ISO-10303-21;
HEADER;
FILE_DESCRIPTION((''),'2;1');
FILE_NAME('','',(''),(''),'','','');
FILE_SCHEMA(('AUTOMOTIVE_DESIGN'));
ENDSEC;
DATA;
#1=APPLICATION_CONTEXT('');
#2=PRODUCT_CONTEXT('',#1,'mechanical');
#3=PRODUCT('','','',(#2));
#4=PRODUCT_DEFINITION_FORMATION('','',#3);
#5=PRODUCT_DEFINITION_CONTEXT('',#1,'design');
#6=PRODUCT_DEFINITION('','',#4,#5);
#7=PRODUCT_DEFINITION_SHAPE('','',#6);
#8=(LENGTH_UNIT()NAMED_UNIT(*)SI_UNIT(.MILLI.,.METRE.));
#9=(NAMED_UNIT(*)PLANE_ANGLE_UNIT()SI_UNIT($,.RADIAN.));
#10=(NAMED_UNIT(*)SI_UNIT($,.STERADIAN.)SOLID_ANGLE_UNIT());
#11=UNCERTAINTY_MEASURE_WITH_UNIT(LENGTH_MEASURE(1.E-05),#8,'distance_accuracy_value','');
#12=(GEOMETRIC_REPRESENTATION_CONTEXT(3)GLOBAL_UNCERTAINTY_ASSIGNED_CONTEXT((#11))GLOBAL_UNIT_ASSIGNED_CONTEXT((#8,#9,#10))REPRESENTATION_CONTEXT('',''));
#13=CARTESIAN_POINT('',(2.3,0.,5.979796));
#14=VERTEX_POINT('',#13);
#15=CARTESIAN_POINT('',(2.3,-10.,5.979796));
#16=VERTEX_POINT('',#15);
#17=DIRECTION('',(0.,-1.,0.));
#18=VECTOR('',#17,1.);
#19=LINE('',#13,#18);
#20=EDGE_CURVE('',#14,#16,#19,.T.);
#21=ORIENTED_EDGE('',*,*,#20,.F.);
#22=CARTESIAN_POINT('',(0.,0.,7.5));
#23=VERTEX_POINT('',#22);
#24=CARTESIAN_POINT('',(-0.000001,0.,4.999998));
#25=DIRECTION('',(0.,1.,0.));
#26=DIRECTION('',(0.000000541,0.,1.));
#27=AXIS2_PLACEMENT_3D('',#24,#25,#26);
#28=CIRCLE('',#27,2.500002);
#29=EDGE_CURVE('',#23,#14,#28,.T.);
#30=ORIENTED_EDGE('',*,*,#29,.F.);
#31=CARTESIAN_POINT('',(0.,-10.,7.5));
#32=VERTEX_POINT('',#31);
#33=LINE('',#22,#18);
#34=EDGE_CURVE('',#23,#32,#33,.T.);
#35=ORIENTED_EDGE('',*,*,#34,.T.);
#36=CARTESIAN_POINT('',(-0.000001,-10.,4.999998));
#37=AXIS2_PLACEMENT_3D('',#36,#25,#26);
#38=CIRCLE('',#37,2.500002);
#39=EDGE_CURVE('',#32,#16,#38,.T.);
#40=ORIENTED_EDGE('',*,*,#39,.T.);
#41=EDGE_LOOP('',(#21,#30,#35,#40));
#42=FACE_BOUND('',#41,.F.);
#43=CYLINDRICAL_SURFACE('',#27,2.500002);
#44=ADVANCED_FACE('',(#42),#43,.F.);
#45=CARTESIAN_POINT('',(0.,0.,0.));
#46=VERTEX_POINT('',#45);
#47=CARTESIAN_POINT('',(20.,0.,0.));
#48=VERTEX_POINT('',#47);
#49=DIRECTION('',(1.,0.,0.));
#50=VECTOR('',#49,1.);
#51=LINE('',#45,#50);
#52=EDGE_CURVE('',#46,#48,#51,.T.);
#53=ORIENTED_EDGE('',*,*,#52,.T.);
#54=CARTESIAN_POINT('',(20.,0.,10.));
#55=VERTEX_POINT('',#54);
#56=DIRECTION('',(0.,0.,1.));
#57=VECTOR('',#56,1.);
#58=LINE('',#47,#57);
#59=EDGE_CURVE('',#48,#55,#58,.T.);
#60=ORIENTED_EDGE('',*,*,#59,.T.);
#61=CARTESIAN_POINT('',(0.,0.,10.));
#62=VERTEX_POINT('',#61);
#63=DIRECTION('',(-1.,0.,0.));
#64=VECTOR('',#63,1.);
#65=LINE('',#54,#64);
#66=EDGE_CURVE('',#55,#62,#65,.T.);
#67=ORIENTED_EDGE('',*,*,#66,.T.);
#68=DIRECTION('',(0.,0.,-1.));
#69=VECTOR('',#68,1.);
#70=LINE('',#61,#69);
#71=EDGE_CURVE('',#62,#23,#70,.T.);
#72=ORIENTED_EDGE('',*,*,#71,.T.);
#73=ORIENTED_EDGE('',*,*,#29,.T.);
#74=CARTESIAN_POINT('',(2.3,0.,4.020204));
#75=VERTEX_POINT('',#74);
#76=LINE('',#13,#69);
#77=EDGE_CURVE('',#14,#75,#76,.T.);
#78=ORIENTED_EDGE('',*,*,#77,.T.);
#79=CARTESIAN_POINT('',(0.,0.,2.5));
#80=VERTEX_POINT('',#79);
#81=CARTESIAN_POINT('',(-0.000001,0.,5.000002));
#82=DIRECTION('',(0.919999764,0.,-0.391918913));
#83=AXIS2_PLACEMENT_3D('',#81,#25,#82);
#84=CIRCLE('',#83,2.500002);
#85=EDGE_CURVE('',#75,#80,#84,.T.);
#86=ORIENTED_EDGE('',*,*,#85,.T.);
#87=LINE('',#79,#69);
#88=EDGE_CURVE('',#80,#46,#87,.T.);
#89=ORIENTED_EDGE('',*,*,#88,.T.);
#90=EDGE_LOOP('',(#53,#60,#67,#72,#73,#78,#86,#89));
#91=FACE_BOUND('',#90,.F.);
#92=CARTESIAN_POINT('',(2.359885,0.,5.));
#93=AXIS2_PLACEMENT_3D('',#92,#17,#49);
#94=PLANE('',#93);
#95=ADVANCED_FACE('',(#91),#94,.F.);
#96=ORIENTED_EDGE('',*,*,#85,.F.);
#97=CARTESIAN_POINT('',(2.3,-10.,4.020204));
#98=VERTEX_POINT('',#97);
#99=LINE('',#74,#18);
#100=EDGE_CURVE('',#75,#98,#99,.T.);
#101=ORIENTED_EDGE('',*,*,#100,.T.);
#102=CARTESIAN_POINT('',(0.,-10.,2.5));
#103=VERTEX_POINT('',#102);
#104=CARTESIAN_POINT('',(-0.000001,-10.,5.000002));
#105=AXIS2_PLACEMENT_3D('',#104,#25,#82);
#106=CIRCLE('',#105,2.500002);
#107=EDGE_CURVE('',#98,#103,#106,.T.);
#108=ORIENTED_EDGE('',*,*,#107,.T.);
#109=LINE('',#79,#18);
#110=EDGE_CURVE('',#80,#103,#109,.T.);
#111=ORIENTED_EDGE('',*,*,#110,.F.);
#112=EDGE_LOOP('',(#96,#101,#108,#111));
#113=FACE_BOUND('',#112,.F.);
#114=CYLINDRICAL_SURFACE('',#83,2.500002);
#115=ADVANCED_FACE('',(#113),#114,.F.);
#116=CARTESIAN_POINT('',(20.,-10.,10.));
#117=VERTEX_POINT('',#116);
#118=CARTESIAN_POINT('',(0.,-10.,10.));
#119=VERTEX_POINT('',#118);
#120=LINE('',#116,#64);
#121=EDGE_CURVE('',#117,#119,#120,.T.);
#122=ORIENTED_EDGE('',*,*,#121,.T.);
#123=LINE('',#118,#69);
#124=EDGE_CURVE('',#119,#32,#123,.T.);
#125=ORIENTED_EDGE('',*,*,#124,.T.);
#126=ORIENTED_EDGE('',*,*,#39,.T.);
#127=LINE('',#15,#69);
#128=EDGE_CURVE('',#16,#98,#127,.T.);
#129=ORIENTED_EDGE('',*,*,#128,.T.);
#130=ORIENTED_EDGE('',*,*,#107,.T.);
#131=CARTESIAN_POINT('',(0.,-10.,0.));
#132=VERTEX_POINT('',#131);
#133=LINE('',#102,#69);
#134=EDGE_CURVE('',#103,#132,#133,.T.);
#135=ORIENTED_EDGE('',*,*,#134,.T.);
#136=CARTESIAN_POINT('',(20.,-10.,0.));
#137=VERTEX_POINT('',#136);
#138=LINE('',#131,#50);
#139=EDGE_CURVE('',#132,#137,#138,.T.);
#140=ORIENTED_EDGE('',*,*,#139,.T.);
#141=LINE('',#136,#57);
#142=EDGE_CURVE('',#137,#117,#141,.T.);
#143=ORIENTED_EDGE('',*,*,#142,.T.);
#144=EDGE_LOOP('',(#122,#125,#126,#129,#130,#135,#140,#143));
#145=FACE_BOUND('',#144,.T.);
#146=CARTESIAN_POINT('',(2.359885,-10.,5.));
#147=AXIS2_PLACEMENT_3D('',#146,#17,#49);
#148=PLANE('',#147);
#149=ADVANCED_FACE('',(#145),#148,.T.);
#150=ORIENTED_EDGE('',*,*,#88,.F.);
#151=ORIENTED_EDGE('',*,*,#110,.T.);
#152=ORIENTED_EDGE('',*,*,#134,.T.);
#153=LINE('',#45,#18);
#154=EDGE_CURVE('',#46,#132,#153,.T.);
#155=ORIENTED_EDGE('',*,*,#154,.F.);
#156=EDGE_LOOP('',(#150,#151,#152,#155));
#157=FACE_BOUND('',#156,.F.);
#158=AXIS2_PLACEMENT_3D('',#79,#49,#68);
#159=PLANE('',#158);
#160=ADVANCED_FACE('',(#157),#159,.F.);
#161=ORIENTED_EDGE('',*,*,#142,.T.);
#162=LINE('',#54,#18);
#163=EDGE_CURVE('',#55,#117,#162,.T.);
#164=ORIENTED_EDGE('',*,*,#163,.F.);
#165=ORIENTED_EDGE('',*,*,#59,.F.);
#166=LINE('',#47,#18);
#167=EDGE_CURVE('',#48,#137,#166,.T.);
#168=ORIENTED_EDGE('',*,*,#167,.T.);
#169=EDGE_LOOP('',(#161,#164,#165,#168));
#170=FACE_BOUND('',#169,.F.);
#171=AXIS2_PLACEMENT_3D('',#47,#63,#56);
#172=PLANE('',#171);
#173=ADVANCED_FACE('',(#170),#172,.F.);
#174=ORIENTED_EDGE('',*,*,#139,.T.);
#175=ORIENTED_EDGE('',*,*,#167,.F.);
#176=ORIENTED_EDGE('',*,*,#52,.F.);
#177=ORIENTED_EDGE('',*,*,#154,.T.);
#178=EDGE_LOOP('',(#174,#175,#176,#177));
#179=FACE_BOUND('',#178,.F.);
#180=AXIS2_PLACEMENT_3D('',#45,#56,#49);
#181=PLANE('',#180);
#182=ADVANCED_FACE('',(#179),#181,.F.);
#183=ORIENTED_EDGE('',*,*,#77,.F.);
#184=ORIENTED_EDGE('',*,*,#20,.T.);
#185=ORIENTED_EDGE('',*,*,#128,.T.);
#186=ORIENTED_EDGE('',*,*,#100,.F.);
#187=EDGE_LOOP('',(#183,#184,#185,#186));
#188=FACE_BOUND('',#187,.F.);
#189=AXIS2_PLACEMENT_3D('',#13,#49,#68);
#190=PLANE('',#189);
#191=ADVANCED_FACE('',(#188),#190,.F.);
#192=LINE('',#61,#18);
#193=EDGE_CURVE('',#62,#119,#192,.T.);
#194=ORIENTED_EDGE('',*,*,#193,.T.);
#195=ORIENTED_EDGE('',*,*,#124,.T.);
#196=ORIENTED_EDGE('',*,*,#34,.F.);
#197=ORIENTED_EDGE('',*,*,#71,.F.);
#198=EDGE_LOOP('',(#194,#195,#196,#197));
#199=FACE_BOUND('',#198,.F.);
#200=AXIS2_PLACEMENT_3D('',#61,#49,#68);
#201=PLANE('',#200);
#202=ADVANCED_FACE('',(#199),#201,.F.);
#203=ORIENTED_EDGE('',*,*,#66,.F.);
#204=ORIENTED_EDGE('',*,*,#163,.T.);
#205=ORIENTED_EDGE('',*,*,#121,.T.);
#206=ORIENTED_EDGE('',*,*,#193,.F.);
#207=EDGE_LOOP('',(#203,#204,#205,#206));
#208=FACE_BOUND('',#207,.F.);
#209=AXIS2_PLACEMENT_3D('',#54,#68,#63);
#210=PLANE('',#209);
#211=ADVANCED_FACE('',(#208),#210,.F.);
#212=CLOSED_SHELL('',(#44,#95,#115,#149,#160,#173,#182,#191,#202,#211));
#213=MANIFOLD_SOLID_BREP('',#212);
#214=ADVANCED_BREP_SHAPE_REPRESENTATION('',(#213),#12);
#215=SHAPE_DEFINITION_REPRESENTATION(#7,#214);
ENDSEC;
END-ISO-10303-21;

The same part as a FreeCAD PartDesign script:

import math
import FreeCAD as App
import Part
import Sketcher
from FreeCAD import Vector

doc = App.newDocument("Part")
body = doc.addObject("PartDesign::Body", "Body")

# Sketch on XZ plane
sketch1 = body.newObject("Sketcher::SketchObject", "Sketch")
sketch1.AttachmentSupport = (doc.getObject("XZ_Plane"), [""])
sketch1.MapMode = "FlatFace"
sketch1.addGeometry([
    Part.LineSegment(Vector(2.3, 5.979796, 0), Vector(2.3, 4.020204, 0)),  # 0
    Part.ArcOfCircle(Part.Circle(Vector(-0.000001, 5.000002, 0), Vector(0, 0, 1), 2.500002), math.radians(-89.999969), math.radians(-23.073953)),  # 1
    Part.LineSegment(Vector(0, 2.5, 0), Vector(0, 0, 0)),  # 2
    Part.LineSegment(Vector(0, 0, 0), Vector(20, 0, 0)),  # 3
    Part.LineSegment(Vector(20, 0, 0), Vector(20, 10, 0)),  # 4
    Part.LineSegment(Vector(20, 10, 0), Vector(0, 10, 0)),  # 5
    Part.LineSegment(Vector(0, 10, 0), Vector(0, 7.5, 0)),  # 6
    Part.ArcOfCircle(Part.Circle(Vector(-0.000001, 4.999998, 0), Vector(0, 0, 1), 2.500002), math.radians(23.073953), math.radians(89.999969)),  # 7
], False)
sketch1.addConstraint([
    Sketcher.Constraint("Coincident", 0, 2, 1, 2),
    Sketcher.Constraint("Coincident", 1, 1, 2, 1),
    Sketcher.Constraint("Coincident", 2, 2, 3, 1),
    Sketcher.Constraint("Coincident", 3, 2, 4, 1),
    Sketcher.Constraint("Coincident", 4, 2, 5, 1),
    Sketcher.Constraint("Coincident", 5, 2, 6, 1),
    Sketcher.Constraint("Coincident", 6, 2, 7, 2),
    Sketcher.Constraint("Coincident", 7, 1, 0, 1),
    Sketcher.Constraint("Vertical", 0),
    Sketcher.Constraint("Vertical", 2),
    Sketcher.Constraint("Horizontal", 3),
    Sketcher.Constraint("Vertical", 4),
    Sketcher.Constraint("Horizontal", 5),
    Sketcher.Constraint("Vertical", 6),
    Sketcher.Constraint("Coincident", 2, 2, -1, 1),
    Sketcher.Constraint("Coincident", 7, 3, 1, 3),
    Sketcher.Constraint("Equal", 1, 7),
    Sketcher.Constraint("PointOnObject", 1, 3, -2),
    Sketcher.Constraint("PointOnObject", 5, 2, -2),
    Sketcher.Constraint("Equal", 2, 6),
    Sketcher.Constraint("DistanceX", 3, 1, 3, 2, 20.0),
    Sketcher.Constraint("DistanceY", 4, 1, 4, 2, 10.0),
    Sketcher.Constraint("DistanceY", 2, 2, 2, 1, 2.5),
    Sketcher.Constraint("DistanceX", -1, 1, 0, 2, 2.3),
])
pad1 = body.newObject("PartDesign::Pad", "Pad")
pad1.Profile = sketch1
pad1.Length = 10

doc.recompute()
